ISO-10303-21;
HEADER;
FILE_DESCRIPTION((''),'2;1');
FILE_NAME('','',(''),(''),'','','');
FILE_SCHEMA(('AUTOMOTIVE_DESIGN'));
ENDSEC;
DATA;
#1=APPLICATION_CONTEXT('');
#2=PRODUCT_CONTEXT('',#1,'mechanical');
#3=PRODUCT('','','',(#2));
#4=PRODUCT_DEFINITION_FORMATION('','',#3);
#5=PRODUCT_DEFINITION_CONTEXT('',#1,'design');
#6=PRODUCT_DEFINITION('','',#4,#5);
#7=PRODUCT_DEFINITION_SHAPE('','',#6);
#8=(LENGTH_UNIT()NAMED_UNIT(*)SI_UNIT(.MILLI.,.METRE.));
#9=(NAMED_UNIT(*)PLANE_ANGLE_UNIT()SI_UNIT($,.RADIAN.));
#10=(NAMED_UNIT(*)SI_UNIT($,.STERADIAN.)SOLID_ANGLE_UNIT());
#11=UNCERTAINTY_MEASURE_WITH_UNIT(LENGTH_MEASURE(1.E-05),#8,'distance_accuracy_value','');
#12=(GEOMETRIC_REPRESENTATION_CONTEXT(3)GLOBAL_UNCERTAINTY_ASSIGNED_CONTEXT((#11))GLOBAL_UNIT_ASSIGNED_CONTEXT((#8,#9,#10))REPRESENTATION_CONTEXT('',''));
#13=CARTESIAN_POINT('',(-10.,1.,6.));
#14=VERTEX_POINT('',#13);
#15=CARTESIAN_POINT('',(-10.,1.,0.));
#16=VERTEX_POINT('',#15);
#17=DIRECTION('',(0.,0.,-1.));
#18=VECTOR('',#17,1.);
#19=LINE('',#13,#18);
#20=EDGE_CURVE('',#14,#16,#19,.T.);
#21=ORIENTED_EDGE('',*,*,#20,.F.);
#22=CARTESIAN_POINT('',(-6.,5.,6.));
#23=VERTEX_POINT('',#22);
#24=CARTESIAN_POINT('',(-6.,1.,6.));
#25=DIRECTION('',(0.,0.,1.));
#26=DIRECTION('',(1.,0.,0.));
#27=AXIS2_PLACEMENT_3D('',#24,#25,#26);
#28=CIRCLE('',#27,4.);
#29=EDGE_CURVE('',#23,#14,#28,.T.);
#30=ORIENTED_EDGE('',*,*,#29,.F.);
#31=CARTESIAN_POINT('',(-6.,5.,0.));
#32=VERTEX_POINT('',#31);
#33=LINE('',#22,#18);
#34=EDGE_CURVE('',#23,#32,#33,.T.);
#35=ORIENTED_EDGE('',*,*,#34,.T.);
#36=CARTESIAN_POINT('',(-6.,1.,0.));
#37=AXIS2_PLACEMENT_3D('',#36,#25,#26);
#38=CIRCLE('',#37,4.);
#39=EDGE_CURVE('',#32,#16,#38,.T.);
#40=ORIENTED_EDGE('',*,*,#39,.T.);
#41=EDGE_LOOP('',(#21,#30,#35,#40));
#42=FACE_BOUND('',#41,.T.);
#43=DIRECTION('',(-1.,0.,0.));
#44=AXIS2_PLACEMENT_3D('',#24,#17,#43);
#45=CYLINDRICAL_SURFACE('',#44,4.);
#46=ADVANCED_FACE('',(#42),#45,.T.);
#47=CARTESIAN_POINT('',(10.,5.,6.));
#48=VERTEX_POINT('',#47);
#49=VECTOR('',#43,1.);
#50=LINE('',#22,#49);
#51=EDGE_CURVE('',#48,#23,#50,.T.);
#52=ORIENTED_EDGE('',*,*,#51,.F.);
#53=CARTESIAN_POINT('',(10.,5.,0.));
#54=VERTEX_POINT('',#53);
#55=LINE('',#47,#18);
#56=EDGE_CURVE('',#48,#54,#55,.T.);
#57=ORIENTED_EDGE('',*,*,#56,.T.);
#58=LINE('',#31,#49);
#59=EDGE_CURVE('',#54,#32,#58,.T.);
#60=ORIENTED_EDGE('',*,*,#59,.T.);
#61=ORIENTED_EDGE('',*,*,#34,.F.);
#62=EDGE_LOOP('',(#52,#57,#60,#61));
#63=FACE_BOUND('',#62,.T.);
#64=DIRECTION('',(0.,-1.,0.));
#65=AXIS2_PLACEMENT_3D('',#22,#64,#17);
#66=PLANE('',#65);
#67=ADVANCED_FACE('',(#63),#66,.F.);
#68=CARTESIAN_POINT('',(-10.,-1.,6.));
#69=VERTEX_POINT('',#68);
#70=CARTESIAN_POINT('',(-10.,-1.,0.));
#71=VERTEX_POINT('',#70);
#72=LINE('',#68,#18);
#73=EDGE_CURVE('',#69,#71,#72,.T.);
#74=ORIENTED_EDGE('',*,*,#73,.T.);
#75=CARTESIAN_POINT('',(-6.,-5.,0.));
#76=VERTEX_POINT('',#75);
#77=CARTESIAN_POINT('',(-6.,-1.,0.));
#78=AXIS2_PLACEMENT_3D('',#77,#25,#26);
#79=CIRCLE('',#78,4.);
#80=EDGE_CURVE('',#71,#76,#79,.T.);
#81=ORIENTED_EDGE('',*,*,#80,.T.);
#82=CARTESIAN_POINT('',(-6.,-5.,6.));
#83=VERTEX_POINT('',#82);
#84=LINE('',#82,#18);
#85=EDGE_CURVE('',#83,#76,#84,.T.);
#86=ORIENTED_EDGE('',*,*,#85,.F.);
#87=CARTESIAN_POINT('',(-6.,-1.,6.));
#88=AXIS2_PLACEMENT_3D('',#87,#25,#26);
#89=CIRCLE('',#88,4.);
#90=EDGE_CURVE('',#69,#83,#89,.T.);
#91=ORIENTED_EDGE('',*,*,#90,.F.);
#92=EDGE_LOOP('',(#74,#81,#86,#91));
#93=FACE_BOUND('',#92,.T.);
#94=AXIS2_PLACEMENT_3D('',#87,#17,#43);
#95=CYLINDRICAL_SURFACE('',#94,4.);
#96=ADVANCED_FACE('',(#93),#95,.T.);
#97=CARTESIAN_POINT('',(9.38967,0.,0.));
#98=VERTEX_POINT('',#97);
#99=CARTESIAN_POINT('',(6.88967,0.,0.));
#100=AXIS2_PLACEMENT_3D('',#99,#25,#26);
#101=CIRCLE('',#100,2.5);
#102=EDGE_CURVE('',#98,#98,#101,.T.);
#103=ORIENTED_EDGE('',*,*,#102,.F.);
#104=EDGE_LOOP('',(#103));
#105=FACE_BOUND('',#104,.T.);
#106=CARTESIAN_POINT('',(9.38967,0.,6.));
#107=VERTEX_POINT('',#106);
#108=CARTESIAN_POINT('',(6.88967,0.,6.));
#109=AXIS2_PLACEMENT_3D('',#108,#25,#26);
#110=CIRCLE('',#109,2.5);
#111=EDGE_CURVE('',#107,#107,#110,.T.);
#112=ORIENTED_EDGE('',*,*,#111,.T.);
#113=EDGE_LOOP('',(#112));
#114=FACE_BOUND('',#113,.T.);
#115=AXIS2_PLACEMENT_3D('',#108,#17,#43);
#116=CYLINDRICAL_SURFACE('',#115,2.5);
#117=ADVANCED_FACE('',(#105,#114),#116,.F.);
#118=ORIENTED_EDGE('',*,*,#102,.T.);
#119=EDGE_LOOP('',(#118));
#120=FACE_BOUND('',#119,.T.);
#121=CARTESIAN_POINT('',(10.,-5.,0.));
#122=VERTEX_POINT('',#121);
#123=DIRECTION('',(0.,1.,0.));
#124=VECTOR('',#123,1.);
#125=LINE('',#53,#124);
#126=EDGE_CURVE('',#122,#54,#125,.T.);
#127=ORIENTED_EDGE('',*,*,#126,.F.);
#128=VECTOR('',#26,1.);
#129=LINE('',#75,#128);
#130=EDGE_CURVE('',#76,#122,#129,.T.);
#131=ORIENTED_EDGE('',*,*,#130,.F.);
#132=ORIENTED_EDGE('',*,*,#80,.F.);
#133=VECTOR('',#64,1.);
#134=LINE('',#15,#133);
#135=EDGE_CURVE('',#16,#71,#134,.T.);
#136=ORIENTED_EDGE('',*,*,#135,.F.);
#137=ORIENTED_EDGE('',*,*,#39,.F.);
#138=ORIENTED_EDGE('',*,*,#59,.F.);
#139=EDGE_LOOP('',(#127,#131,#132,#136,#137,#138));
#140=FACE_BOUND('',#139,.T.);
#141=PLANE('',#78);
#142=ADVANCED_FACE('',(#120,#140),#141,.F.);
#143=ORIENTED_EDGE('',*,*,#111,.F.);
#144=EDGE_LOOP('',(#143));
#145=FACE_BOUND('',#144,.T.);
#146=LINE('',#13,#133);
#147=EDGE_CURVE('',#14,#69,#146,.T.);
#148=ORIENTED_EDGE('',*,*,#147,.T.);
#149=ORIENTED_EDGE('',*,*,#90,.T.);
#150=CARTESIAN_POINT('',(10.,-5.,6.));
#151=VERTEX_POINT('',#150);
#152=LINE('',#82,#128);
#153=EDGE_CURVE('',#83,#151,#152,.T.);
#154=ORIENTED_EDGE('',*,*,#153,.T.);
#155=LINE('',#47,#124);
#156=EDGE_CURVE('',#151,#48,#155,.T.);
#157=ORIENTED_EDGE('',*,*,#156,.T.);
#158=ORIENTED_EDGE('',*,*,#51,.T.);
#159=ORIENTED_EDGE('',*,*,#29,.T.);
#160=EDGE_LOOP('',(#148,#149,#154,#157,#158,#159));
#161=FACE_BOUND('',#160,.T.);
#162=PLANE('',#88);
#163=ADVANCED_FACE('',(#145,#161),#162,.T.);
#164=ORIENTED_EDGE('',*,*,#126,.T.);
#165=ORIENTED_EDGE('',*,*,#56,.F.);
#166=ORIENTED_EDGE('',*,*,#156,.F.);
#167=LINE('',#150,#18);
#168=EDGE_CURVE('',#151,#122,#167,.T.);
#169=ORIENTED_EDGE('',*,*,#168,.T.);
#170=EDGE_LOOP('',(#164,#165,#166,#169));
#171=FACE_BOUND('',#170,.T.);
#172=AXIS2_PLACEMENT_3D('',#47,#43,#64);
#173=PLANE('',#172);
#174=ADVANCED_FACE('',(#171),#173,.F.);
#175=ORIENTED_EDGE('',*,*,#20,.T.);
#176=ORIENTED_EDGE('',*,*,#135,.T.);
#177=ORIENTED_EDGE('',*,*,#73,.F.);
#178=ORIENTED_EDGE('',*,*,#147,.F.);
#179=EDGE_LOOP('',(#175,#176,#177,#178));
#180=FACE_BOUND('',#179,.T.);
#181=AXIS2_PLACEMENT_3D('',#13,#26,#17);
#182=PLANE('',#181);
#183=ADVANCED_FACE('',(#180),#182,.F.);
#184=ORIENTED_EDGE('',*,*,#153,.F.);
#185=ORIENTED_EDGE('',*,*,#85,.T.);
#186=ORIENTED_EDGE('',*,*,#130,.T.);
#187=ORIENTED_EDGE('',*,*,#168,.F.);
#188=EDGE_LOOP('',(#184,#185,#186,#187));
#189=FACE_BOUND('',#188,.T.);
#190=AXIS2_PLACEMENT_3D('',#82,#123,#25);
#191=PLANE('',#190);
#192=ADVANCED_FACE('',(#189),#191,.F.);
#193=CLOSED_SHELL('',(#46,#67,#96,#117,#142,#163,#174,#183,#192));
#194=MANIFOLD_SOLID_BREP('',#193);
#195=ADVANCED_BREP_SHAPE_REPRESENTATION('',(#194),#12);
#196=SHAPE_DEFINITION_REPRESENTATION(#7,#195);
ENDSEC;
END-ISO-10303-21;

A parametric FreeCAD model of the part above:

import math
import FreeCAD as App
import Part
import Sketcher
from FreeCAD import Vector
Q = App.Units.Quantity

doc = App.newDocument("Part")
body = doc.addObject("PartDesign::Body", "Body")

sketch1 = body.newObject("Sketcher::SketchObject", "Sketch")
sketch1.AttachmentSupport = (doc.getObject("XY_Plane"), [""])
sketch1.MapMode = "FlatFace"
sketch1.addGeometry([
    Part.LineSegment(Vector(10, 5, 0), Vector(-6, 5, 0)),
    Part.ArcOfCircle(Part.Circle(Vector(-6, 1, 0), Vector(0, 0, 1), 4), math.radians(90), math.radians(180)),
    Part.LineSegment(Vector(-10, 1, 0), Vector(-10, -1, 0)),
    Part.ArcOfCircle(Part.Circle(Vector(-6, -1, 0), Vector(0, 0, 1), 4), math.radians(180), math.radians(270)),
    Part.LineSegment(Vector(-6, -5, 0), Vector(10, -5, 0)),
    Part.LineSegment(Vector(10, -5, 0), Vector(10, 5, 0)),
    Part.Circle(Vector(6.88967, 0, 0), Vector(0, 0, 1), 2.5),
], False)
sketch1.addConstraint([
    Sketcher.Constraint("Tangent", 0, 2, 1, 1),
    Sketcher.Constraint("Tangent", 1, 2, 2, 1),
    Sketcher.Constraint("Tangent", 2, 2, 3, 1),
    Sketcher.Constraint("Tangent", 3, 2, 4, 1),
    Sketcher.Constraint("Coincident", 4, 2, 5, 1),
    Sketcher.Constraint("Coincident", 5, 2, 0, 1),
    Sketcher.Constraint("Horizontal", 0),
    Sketcher.Constraint("Vertical", 2),
    Sketcher.Constraint("Horizontal", 4),
    Sketcher.Constraint("Vertical", 5),
    Sketcher.Constraint("Equal", 1, 3),
    Sketcher.Constraint("PointOnObject", 6, 3, -1),
    Sketcher.Constraint("Diameter", 6, Q("5 mm")),
    Sketcher.Constraint("Radius", 1, Q("4 mm")),
    Sketcher.Constraint("DistanceX", 0, 2, 0, 1, Q("16 mm")),
    Sketcher.Constraint("DistanceY", 2, 2, 2, 1, Q("2 mm")),
    Sketcher.Constraint("DistanceX", 1, 3, -1, 1, Q("6 mm")),
    Sketcher.Constraint("DistanceY", -1, 1, 1, 3, Q("1 mm")),
    Sketcher.Constraint("DistanceX", -1, 1, 6, 3, Q("6.88967 mm")),
])
pad1 = body.newObject("PartDesign::Pad", "Pad")
pad1.Profile = sketch1
pad1.Length = 6

doc.recompute()
